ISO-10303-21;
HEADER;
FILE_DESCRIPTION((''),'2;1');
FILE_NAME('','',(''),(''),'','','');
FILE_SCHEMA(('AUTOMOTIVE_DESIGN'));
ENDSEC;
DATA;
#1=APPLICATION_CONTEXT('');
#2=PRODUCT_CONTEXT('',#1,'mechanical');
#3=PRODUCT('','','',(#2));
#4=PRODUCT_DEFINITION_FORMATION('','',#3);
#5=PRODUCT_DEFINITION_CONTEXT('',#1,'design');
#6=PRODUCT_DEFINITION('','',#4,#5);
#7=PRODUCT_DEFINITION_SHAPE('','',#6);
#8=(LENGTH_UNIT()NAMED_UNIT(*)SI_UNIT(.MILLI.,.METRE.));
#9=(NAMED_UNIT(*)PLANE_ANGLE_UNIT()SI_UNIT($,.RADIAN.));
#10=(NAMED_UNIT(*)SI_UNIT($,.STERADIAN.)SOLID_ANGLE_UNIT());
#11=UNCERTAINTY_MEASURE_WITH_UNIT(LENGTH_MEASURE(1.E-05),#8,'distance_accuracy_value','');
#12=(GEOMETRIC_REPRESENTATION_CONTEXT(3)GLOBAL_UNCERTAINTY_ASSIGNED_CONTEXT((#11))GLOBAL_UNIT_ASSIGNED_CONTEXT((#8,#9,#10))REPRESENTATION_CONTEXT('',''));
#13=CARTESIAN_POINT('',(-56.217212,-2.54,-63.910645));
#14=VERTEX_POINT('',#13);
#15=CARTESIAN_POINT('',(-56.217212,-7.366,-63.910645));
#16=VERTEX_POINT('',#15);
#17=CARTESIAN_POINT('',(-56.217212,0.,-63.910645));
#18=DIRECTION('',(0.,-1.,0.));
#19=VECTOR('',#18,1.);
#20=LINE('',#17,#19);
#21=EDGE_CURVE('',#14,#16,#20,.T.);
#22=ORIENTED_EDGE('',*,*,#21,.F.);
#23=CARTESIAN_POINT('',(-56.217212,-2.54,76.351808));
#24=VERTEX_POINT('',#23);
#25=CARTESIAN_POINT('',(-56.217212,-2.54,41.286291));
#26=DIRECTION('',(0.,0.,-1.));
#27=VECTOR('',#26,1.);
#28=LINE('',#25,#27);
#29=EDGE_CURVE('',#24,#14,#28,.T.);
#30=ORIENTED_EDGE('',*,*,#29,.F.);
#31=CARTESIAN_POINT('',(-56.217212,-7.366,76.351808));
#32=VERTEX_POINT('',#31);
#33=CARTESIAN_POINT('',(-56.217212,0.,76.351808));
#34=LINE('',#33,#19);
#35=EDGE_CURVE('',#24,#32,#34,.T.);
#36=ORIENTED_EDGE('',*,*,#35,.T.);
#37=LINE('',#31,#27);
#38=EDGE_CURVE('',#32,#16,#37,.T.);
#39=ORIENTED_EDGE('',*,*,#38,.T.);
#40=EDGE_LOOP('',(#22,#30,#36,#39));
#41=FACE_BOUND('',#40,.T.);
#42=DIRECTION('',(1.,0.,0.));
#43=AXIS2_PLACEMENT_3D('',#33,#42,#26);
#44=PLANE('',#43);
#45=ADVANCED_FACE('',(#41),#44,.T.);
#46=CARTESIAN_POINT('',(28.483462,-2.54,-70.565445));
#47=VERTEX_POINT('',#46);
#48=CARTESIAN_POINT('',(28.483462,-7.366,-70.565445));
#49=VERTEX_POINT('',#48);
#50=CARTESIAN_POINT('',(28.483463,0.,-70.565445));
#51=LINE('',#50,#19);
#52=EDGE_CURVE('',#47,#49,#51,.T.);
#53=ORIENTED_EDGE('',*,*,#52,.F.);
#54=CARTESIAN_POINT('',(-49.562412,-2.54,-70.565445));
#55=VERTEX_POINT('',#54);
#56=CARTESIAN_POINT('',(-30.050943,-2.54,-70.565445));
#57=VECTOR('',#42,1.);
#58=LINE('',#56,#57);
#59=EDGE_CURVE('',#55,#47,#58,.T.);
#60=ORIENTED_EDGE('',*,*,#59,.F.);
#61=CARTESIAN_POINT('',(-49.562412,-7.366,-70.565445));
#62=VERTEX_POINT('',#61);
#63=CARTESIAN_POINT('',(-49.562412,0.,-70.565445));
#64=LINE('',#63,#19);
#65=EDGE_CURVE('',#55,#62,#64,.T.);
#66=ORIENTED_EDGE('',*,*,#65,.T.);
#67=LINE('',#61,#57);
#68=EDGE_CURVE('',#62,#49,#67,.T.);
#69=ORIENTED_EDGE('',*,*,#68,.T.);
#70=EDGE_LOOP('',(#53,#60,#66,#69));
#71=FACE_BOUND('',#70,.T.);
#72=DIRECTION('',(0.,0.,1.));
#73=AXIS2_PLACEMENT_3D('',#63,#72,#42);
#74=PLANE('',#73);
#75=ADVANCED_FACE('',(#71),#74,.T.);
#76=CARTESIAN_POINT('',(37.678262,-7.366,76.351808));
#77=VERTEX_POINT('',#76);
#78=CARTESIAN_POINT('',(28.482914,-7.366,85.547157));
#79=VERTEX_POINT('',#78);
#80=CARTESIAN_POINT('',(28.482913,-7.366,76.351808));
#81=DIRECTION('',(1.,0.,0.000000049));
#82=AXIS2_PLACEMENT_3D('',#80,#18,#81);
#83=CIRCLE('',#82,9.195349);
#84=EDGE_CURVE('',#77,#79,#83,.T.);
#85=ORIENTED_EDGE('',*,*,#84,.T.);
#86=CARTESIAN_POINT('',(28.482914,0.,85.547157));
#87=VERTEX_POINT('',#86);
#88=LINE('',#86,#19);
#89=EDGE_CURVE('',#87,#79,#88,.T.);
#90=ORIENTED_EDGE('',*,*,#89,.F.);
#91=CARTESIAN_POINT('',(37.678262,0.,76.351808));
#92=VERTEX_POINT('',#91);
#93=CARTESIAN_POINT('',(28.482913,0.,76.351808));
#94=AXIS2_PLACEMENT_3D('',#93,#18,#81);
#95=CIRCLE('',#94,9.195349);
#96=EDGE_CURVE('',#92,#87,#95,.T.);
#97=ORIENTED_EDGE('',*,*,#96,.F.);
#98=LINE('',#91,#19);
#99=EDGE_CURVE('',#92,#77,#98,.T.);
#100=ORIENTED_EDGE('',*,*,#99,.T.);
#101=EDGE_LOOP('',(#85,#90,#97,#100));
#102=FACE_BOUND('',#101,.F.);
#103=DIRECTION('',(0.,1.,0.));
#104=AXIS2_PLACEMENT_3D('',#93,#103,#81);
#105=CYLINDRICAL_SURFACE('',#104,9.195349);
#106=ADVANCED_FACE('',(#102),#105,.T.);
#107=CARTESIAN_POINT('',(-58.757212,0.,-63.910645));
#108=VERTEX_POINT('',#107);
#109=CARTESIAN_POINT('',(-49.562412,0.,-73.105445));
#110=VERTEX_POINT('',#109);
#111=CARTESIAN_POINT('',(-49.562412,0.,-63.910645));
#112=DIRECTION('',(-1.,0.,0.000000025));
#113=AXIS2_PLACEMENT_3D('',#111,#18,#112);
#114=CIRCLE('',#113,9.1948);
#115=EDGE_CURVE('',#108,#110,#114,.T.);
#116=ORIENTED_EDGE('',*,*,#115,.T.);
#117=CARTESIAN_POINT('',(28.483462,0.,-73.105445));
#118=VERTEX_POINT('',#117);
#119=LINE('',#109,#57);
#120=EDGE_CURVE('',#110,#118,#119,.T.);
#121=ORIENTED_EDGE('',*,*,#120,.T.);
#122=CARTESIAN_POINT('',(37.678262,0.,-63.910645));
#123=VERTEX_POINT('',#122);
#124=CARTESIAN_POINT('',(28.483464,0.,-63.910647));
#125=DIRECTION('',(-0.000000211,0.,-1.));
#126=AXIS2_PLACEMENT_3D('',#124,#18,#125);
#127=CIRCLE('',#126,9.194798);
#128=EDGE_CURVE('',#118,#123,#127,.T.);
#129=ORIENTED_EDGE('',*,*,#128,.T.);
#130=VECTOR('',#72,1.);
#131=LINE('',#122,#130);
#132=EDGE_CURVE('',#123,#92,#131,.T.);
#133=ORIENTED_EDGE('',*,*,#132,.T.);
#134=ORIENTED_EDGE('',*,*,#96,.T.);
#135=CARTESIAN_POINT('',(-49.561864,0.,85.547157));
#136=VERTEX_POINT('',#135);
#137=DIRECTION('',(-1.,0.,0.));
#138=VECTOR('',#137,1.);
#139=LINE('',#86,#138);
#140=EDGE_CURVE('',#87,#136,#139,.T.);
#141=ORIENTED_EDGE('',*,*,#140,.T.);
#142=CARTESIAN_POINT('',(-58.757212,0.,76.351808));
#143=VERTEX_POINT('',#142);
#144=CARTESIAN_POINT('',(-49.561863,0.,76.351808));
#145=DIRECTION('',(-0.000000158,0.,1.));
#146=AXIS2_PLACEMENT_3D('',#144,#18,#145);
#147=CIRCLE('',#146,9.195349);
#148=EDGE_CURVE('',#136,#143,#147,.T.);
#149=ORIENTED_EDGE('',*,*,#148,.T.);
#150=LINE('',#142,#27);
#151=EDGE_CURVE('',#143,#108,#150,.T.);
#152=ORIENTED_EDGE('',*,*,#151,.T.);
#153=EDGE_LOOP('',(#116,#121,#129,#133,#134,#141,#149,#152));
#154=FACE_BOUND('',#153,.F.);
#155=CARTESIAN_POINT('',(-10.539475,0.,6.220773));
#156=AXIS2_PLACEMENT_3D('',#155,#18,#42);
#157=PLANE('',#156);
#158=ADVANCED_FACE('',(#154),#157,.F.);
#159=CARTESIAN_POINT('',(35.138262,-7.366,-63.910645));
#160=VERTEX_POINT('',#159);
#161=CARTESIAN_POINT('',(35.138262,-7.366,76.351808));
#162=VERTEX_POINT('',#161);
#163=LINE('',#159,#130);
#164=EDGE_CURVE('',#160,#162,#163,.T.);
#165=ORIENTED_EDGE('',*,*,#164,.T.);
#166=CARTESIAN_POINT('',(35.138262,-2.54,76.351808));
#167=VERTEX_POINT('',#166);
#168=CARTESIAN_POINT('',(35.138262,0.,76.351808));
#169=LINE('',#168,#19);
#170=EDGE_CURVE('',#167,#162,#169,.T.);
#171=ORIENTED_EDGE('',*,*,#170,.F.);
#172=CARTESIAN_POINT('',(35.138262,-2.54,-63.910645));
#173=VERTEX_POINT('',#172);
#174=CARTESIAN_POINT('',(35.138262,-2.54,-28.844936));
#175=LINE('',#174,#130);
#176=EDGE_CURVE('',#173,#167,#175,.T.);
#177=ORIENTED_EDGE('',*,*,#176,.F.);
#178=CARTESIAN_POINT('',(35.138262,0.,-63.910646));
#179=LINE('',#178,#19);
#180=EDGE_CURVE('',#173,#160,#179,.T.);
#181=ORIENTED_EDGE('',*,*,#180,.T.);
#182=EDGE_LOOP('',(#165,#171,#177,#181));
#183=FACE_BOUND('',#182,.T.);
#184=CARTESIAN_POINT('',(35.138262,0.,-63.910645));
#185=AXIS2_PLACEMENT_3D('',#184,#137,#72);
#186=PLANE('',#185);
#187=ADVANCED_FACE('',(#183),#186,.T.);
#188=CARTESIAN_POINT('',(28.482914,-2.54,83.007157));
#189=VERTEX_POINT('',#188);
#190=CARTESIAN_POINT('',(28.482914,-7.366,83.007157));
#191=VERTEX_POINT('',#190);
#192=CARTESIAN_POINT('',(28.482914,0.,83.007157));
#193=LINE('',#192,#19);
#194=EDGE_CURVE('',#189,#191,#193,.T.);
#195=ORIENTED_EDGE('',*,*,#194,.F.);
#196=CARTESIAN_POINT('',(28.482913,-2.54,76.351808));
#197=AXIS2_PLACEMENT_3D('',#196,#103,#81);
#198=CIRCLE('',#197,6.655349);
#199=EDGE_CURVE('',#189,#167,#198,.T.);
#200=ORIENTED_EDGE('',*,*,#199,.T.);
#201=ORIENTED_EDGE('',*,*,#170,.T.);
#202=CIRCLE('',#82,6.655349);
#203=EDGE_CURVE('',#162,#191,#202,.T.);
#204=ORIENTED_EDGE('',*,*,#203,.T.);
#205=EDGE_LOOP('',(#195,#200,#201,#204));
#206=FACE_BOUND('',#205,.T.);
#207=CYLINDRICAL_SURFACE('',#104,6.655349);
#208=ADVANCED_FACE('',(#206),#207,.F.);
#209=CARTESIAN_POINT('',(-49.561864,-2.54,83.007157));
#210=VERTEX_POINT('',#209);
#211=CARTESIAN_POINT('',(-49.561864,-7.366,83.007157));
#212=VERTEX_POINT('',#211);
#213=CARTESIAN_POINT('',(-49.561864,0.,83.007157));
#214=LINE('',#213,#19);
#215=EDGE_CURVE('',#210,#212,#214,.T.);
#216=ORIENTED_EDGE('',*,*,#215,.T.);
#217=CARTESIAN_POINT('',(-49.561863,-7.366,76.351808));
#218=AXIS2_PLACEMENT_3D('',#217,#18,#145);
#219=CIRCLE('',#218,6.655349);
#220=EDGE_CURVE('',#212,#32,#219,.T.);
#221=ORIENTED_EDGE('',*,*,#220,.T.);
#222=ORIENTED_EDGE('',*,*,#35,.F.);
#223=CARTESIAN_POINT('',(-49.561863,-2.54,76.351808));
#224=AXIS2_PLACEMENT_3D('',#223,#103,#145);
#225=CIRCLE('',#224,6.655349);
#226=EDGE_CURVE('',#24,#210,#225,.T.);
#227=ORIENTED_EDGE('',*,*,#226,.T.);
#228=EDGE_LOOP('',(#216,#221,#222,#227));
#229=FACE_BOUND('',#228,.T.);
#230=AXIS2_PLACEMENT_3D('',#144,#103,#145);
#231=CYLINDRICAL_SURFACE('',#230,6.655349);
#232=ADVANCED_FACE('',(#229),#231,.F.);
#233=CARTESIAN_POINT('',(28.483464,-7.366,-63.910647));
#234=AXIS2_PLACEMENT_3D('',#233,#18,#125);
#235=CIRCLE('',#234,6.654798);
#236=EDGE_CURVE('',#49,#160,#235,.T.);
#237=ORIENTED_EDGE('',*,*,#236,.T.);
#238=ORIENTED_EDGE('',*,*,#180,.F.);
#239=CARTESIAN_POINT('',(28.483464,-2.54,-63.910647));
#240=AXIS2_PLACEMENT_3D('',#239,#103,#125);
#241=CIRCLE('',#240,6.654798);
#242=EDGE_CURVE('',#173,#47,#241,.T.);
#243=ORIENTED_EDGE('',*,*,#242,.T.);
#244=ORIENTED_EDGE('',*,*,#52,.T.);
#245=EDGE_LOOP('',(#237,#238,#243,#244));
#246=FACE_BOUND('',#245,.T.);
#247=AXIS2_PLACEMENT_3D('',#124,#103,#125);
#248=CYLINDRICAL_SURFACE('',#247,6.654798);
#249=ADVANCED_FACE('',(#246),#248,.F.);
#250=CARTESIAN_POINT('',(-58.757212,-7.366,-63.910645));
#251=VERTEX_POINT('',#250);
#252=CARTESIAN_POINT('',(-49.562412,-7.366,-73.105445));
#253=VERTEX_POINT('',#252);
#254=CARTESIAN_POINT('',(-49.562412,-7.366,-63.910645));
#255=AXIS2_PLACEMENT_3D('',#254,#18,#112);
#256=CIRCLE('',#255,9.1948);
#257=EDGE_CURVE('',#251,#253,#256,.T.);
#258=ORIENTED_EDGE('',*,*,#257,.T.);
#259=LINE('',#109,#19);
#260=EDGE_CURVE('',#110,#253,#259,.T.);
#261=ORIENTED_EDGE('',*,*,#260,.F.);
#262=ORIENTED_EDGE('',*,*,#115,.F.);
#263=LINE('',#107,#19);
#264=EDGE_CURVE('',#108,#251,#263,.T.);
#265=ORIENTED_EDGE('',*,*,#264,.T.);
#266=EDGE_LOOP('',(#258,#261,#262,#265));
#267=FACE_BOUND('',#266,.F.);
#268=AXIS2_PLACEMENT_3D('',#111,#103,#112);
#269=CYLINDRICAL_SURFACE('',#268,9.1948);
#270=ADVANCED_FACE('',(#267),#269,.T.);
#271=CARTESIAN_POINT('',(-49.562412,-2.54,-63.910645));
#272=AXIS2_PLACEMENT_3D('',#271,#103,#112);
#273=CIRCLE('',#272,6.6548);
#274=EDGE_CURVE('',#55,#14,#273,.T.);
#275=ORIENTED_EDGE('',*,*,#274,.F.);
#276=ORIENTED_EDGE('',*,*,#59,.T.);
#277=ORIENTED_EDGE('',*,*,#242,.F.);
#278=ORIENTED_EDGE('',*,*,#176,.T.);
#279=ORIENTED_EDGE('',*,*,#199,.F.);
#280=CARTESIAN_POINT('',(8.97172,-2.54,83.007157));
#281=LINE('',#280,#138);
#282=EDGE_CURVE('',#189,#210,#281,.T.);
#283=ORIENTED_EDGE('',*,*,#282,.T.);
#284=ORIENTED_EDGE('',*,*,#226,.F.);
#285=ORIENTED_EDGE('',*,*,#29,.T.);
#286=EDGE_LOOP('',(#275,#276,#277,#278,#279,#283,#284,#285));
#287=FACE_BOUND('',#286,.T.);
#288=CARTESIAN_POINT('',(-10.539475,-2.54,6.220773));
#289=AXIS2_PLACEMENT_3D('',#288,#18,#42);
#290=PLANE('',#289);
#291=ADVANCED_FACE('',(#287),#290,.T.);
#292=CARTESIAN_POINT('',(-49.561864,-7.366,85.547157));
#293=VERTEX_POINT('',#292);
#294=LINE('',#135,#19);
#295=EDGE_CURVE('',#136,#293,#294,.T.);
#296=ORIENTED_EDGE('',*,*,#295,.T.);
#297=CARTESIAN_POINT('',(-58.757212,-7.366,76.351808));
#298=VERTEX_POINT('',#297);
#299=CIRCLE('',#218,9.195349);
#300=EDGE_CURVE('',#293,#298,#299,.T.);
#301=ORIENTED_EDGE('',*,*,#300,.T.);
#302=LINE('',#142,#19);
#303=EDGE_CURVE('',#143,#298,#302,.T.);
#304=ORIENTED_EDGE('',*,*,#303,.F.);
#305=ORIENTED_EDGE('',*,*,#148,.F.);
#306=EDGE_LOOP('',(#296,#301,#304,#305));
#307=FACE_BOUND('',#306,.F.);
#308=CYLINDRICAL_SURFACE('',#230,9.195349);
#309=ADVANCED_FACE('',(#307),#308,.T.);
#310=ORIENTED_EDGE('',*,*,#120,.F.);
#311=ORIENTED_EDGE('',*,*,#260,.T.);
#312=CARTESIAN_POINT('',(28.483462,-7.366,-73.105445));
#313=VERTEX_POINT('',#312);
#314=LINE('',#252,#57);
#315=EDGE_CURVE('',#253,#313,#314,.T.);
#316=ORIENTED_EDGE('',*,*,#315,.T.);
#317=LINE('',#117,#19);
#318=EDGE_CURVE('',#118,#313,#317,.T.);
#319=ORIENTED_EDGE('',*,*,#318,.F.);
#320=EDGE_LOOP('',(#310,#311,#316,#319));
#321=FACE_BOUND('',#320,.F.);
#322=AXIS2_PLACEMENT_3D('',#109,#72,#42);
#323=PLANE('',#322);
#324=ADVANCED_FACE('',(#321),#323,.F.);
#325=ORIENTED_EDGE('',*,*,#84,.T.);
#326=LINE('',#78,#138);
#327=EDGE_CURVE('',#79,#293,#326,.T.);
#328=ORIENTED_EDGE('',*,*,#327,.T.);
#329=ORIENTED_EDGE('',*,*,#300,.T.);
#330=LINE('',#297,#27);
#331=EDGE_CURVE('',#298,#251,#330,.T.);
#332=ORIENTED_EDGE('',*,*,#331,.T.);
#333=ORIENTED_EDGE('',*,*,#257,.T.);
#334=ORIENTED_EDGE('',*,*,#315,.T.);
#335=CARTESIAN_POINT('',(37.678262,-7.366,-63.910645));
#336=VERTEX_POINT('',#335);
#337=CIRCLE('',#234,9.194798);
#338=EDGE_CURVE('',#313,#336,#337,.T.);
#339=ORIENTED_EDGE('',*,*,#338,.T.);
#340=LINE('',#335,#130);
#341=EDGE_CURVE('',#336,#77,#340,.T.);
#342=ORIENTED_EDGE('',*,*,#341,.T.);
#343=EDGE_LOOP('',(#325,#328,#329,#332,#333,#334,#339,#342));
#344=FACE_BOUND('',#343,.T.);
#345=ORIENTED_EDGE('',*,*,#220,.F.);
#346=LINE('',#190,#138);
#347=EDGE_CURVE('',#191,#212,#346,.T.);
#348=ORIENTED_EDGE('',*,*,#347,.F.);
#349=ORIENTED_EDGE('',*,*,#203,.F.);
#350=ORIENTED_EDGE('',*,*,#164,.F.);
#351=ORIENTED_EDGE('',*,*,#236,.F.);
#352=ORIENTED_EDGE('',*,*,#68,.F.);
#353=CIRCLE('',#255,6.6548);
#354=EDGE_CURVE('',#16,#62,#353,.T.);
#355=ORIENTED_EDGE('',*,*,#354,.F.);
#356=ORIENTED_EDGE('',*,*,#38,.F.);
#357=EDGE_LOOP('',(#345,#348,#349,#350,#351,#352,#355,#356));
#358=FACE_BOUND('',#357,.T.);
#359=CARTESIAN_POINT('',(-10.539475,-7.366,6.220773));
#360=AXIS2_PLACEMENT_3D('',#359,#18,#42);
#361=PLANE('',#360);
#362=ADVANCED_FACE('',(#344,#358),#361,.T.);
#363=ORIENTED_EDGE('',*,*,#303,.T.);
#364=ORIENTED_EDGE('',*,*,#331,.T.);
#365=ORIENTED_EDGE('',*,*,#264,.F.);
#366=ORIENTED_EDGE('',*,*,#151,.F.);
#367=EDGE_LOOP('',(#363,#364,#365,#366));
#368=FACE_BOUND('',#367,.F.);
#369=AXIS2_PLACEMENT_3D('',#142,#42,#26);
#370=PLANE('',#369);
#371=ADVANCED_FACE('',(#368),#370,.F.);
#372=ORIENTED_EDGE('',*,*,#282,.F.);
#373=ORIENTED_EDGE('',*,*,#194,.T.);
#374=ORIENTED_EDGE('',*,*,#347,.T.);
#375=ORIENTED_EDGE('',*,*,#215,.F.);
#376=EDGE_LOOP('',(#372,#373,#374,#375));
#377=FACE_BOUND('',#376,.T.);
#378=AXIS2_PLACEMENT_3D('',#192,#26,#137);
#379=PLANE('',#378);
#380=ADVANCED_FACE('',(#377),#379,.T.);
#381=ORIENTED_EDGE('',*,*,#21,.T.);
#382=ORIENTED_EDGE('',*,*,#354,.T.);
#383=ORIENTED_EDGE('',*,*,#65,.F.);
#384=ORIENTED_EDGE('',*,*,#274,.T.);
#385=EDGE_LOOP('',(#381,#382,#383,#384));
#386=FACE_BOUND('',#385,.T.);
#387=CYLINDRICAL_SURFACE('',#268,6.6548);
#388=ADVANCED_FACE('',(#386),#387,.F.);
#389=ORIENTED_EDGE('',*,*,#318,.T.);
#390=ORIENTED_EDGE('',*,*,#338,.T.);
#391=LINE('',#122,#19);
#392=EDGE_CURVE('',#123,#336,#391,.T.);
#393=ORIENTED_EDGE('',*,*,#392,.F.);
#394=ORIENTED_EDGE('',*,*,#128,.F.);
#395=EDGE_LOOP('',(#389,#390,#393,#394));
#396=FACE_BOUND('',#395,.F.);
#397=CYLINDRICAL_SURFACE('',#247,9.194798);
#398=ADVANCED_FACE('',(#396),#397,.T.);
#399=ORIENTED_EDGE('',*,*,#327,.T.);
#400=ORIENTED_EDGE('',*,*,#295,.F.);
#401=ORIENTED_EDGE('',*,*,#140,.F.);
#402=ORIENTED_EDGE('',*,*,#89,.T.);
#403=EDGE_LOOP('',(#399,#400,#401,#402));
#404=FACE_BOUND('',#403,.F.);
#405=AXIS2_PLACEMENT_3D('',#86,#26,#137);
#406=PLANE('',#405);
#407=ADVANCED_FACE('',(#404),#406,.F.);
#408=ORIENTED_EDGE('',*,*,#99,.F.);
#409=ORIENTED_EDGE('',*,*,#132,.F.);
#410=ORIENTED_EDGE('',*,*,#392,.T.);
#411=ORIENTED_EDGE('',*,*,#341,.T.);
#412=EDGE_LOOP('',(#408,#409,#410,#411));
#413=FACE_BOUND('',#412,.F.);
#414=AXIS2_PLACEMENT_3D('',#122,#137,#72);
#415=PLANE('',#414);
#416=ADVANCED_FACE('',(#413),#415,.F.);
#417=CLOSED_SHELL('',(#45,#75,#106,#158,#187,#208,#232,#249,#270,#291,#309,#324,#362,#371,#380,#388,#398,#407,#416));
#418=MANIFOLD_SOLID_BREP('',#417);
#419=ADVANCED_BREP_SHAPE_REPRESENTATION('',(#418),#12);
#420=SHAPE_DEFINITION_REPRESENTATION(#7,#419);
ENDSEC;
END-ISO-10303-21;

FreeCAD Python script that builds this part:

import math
import FreeCAD as App
import Part
import Sketcher

V = App.Vector
Q = App.Units.Quantity


def faces_at(feature, points):
    """Names of the faces that lie closest to the given points."""
    faces = feature.Shape.Faces
    near = lambda p: min(range(len(faces)), key=lambda i: faces[i].distToShape(Part.Vertex(*p))[0])
    return sorted({f"Face{near(p) + 1}" for p in points})

doc = App.newDocument("Part")
params = doc.addObject("Spreadsheet::Sheet", "Params")
for row, (alias, value) in enumerate([
    ("sketch1_radius", "0.362 in"),
    ("pad1_length", "0.29 in"),
    ("thickness_wall", "0.1 in"),
], start=1):
    params.set(f"A{row}", alias)
    params.set(f"B{row}", "=" + value)
    params.setAlias(f"B{row}", alias)

body = doc.addObject("PartDesign::Body", "Body")

sketch1 = body.newObject("Sketcher::SketchObject", "Sketch")
sketch1.AttachmentSupport = (doc.getObject("XZ_Plane"), [""])
sketch1.MapMode = "FlatFace"
sketch1.addGeometry([
    Part.LineSegment(V(28, 86, 0), V(-50, 86, 0)),
    Part.ArcOfCircle(Part.Circle(V(-50, 76, 0), V(0, 0, 1), 9), math.radians(90), math.radians(180)),
    Part.LineSegment(V(-59, 76, 0), V(-59, -64, 0)),
    Part.ArcOfCircle(Part.Circle(V(-50, -64, 0), V(0, 0, 1), 9), math.radians(180), math.radians(270)),
    Part.LineSegment(V(-50, -73, 0), V(28, -73, 0)),
    Part.ArcOfCircle(Part.Circle(V(28, -64, 0), V(0, 0, 1), 9), math.radians(-90), math.radians(0)),
    Part.LineSegment(V(38, -64, 0), V(38, 76, 0)),
    Part.ArcOfCircle(Part.Circle(V(28, 76, 0), V(0, 0, 1), 9), math.radians(0), math.radians(90)),
], False)
sketch1.addConstraint([
    Sketcher.Constraint("Tangent", 0, 2, 1, 1),
    Sketcher.Constraint("Tangent", 1, 2, 2, 1),
    Sketcher.Constraint("Tangent", 2, 2, 3, 1),
    Sketcher.Constraint("Tangent", 3, 2, 4, 1),
    Sketcher.Constraint("Tangent", 4, 2, 5, 1),
    Sketcher.Constraint("Tangent", 5, 2, 6, 1),
    Sketcher.Constraint("Tangent", 6, 2, 7, 1),
    Sketcher.Constraint("Tangent", 7, 2, 0, 1),
    Sketcher.Constraint("Horizontal", 0),
    Sketcher.Constraint("Vertical", 2),
    Sketcher.Constraint("Horizontal", 4),
    Sketcher.Constraint("Vertical", 6),
    Sketcher.Constraint("Equal", 3, 5),
    Sketcher.Constraint("Equal", 1, 7),
    Sketcher.Constraint("Radius", 3, Q("0.362 in")),
    Sketcher.Constraint("Radius", 1, Q("9.195349 mm")),
    Sketcher.Constraint("DistanceX", 0, 2, 0, 1, Q("78.044778 mm")),
    Sketcher.Constraint("DistanceY", 2, 2, 2, 1, Q("140.262453 mm")),
    Sketcher.Constraint("DistanceX", 1, 2, -1, 1, Q("58.757212 mm")),
    Sketcher.Constraint("DistanceY", -1, 1, 1, 2, Q("76.351808 mm")),
])
sketch1.setExpression("Constraints[14]", "Params.sketch1_radius")
pad1 = body.newObject("PartDesign::Pad", "Pad")
pad1.Profile = sketch1
pad1.setExpression("Length", "Params.pad1_length")
doc.recompute()

thickness = body.newObject("PartDesign::Thickness", "Thickness")
thickness.Base = (pad1, faces_at(pad1, [(-10.539, -7.366, 6.221)]))
thickness.setExpression("Value", "Params.thickness_wall")
thickness.Reversed = True
thickness.Join = "Arc"

doc.recompute()
